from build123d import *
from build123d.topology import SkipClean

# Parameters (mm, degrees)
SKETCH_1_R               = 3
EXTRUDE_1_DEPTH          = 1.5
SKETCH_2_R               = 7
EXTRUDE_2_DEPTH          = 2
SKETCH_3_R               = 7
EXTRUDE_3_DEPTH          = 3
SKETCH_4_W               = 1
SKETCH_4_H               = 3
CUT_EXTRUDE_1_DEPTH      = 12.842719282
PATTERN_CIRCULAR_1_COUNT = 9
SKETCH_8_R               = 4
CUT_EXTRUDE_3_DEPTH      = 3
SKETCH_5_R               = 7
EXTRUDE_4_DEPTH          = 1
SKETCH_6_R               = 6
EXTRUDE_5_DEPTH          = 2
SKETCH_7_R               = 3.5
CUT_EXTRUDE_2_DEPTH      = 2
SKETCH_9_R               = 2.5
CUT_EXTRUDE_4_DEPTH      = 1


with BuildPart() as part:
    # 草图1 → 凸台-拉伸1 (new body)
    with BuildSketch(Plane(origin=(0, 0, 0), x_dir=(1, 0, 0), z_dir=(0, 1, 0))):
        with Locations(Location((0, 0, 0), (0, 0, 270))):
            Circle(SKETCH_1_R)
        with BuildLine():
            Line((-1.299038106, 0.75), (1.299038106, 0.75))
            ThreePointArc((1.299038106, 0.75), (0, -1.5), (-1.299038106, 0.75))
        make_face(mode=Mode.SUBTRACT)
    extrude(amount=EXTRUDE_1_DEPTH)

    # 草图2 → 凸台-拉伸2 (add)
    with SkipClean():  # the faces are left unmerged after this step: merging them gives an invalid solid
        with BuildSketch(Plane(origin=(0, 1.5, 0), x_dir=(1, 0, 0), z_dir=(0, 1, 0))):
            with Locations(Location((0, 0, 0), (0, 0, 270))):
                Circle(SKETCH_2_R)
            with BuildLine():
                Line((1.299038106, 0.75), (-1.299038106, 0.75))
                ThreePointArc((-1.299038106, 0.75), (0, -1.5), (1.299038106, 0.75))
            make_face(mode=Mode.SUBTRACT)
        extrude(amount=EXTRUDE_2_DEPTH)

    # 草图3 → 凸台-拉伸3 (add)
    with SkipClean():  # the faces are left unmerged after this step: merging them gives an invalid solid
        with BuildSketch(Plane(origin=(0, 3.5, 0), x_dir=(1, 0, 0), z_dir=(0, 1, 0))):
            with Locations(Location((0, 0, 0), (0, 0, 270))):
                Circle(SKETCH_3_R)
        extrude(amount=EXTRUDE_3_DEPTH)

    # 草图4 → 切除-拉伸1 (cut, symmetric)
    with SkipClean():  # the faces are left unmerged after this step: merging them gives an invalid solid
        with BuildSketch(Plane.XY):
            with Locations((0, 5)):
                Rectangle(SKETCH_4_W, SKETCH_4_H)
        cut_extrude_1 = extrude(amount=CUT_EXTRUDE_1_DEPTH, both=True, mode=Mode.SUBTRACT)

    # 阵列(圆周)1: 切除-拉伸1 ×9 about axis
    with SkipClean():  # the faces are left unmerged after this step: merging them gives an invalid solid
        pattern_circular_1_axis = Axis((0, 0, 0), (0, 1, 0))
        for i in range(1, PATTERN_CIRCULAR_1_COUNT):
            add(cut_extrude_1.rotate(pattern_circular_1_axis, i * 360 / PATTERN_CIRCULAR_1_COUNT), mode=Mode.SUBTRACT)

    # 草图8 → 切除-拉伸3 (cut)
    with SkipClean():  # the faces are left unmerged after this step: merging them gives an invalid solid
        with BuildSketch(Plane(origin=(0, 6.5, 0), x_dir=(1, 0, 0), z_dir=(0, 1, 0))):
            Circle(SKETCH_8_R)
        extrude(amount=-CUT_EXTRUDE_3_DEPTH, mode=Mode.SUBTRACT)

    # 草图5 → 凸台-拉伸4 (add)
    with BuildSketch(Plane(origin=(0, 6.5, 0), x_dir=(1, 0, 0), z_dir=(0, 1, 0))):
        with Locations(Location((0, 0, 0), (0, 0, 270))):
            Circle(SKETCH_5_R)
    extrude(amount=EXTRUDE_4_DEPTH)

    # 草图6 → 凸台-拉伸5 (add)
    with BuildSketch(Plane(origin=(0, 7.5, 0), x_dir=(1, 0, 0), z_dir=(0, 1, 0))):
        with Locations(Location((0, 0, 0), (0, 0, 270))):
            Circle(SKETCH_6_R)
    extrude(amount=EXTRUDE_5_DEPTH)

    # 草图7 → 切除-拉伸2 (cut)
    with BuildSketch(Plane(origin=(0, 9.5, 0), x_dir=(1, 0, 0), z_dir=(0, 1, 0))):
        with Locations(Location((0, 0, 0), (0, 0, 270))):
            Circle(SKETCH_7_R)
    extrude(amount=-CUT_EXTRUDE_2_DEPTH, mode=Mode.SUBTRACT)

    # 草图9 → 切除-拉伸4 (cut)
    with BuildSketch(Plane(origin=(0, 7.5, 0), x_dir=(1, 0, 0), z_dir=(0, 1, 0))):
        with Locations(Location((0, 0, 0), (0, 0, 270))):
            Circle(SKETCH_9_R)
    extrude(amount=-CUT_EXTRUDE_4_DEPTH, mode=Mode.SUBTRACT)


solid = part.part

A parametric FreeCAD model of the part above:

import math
import FreeCAD as App
import Part
import Sketcher
from FreeCAD import Vector
Q = App.Units.Quantity

doc = App.newDocument("Part")
params = doc.addObject("Spreadsheet::Sheet", "Params")
for row, (alias, value) in enumerate([
    ("sketch1_diameter", "6 mm"),
    ("sketch1_radius", "1.5 mm"),
    ("pad1_length", "1.5 mm"),
    ("sketch2_diameter", "14 mm"),
    ("sketch2_radius", "1.5 mm"),
    ("pad2_length", "2 mm"),
    ("sketch3_diameter", "14 mm"),
    ("pad3_length", "3 mm"),
    ("sketch4_width", "1 mm"),
    ("sketch4_height", "3 mm"),
    ("pocket1_length", "25.685439 mm"),
    ("sketch5_diameter", "8 mm"),
    ("pocket2_length", "3 mm"),
    ("sketch6_diameter", "14 mm"),
    ("pad4_length", "1 mm"),
    ("sketch7_diameter", "12 mm"),
    ("pad5_length", "2 mm"),
    ("sketch8_diameter", "7 mm"),
    ("pocket3_length", "2 mm"),
    ("sketch9_diameter", "5 mm"),
    ("pocket4_length", "1 mm"),
], start=1):
    params.set(f"A{row}", alias)
    params.set(f"B{row}", "=" + value)
    params.setAlias(f"B{row}", alias)

body = doc.addObject("PartDesign::Body", "Body")

# Sketch on XZ plane
sketch1 = body.newObject("Sketcher::SketchObject", "Sketch")
sketch1.AttachmentSupport = (doc.getObject("XZ_Plane"), [""])
sketch1.MapMode = "FlatFace"
sketch1.addGeometry([
    Part.Circle(Vector(0, 0, 0), Vector(0, 0, 1), 3),
    Part.ArcOfCircle(Part.Circle(Vector(0, 0, 0), Vector(0, 0, 1), 1.5), math.radians(-30), math.radians(210)),
    Part.LineSegment(Vector(-1.299038, -0.75, 0), Vector(1.299038, -0.75, 0)),
], False)
sketch1.addConstraint([
    Sketcher.Constraint("Coincident", 1, 1, 2, 2),
    Sketcher.Constraint("Coincident", 2, 1, 1, 2),
    Sketcher.Constraint("Horizontal", 2),
    Sketcher.Constraint("Coincident", 0, 3, -1, 1),
    Sketcher.Constraint("Coincident", 1, 3, -1, 1),
    Sketcher.Constraint("Diameter", 0, Q("6 mm")),
    Sketcher.Constraint("Radius", 1, Q("1.5 mm")),
    Sketcher.Constraint("DistanceY", 1, 1, -1, 1, Q("0.75 mm")),
])
sketch1.setExpression("Constraints[5]", "Params.sketch1_diameter")
sketch1.setExpression("Constraints[6]", "Params.sketch1_radius")
pad1 = body.newObject("PartDesign::Pad", "Pad")
pad1.Profile = sketch1
pad1.setExpression("Length", "Params.pad1_length")
pad1.Reversed = True

# Sketch on XZ plane
sketch2 = body.newObject("Sketcher::SketchObject", "Sketch001")
sketch2.AttachmentSupport = (doc.getObject("XZ_Plane"), [""])
sketch2.MapMode = "FlatFace"
sketch2.AttachmentOffset = App.Placement(Vector(0, 0, -1.5), App.Rotation())
sketch2.addGeometry([
    Part.Circle(Vector(0, 0, 0), Vector(0, 0, 1), 7),
    Part.LineSegment(Vector(-1.299038, -0.75, 0), Vector(1.299038, -0.75, 0)),
    Part.ArcOfCircle(Part.Circle(Vector(0, 0, 0), Vector(0, 0, 1), 1.5), math.radians(-30), math.radians(210)),
], False)
sketch2.addConstraint([
    Sketcher.Constraint("Coincident", 1, 1, 2, 2),
    Sketcher.Constraint("Coincident", 2, 1, 1, 2),
    Sketcher.Constraint("Horizontal", 1),
    Sketcher.Constraint("Coincident", 0, 3, -1, 1),
    Sketcher.Constraint("Coincident", 2, 3, -1, 1),
    Sketcher.Constraint("Diameter", 0, Q("14 mm")),
    Sketcher.Constraint("Radius", 2, Q("1.5 mm")),
    Sketcher.Constraint("DistanceY", 1, 1, -1, 1, Q("0.75 mm")),
])
sketch2.setExpression("Constraints[5]", "Params.sketch2_diameter")
sketch2.setExpression("Constraints[6]", "Params.sketch2_radius")
pad2 = body.newObject("PartDesign::Pad", "Pad001")
pad2.Profile = sketch2
pad2.setExpression("Length", "Params.pad2_length")
pad2.Reversed = True

# Sketch on XZ plane
sketch3 = body.newObject("Sketcher::SketchObject", "Sketch002")
sketch3.AttachmentSupport = (doc.getObject("XZ_Plane"), [""])
sketch3.MapMode = "FlatFace"
sketch3.AttachmentOffset = App.Placement(Vector(0, 0, -3.5), App.Rotation())
sketch3.addGeometry(Part.Circle(Vector(0, 0, 0), Vector(0, 0, 1), 7), False)
sketch3.addConstraint([
    Sketcher.Constraint("Coincident", 0, 3, -1, 1),
    Sketcher.Constraint("Diameter", 0, Q("14 mm")),
])
sketch3.setExpression("Constraints[1]", "Params.sketch3_diameter")
pad3 = body.newObject("PartDesign::Pad", "Pad002")
pad3.Profile = sketch3
pad3.setExpression("Length", "Params.pad3_length")
pad3.Reversed = True

# Sketch on XY plane
sketch4 = body.newObject("Sketcher::SketchObject", "Sketch003")
sketch4.AttachmentSupport = (doc.getObject("XY_Plane"), [""])
sketch4.MapMode = "FlatFace"
sketch4.addGeometry([
    Part.LineSegment(Vector(-0.5, 6.5, 0), Vector(-0.5, 3.5, 0)),
    Part.LineSegment(Vector(-0.5, 3.5, 0), Vector(0.5, 3.5, 0)),
    Part.LineSegment(Vector(0.5, 3.5, 0), Vector(0.5, 6.5, 0)),
    Part.LineSegment(Vector(0.5, 6.5, 0), Vector(-0.5, 6.5, 0)),
], False)
sketch4.addConstraint([
    Sketcher.Constraint("Coincident", 0, 2, 1, 1),
    Sketcher.Constraint("Coincident", 1, 2, 2, 1),
    Sketcher.Constraint("Coincident", 2, 2, 3, 1),
    Sketcher.Constraint("Coincident", 3, 2, 0, 1),
    Sketcher.Constraint("Vertical", 0),
    Sketcher.Constraint("Horizontal", 1),
    Sketcher.Constraint("Vertical", 2),
    Sketcher.Constraint("Horizontal", 3),
    Sketcher.Constraint("DistanceX", 1, 1, 1, 2, Q("1 mm")),
    Sketcher.Constraint("DistanceY", 0, 2, 0, 1, Q("3 mm")),
    Sketcher.Constraint("DistanceX", 0, 2, -1, 1, Q("0.5 mm")),
    Sketcher.Constraint("DistanceY", -1, 1, 0, 2, Q("3.5 mm")),
])
sketch4.setExpression("Constraints[8]", "Params.sketch4_width")
sketch4.setExpression("Constraints[9]", "Params.sketch4_height")
pocket1 = body.newObject("PartDesign::Pocket", "Pocket")
pocket1.Profile = sketch4
pocket1.setExpression("Length", "Params.pocket1_length")
pocket1.Midplane = True
doc.recompute()

polarpattern = body.newObject("PartDesign::PolarPattern", "PolarPattern")
polarpattern.Originals = [pocket1]
polarpattern.Axis = (doc.getObject("Y_Axis"), [""])
polarpattern.Angle = 360
polarpattern.Occurrences = 9
body.Tip = polarpattern

# Sketch on XZ plane
sketch5 = body.newObject("Sketcher::SketchObject", "Sketch004")
sketch5.AttachmentSupport = (doc.getObject("XZ_Plane"), [""])
sketch5.MapMode = "FlatFace"
sketch5.AttachmentOffset = App.Placement(Vector(0, 0, -6.5), App.Rotation())
sketch5.addGeometry(Part.Circle(Vector(0, 0, 0), Vector(0, 0, 1), 4), False)
sketch5.addConstraint([
    Sketcher.Constraint("Coincident", 0, 3, -1, 1),
    Sketcher.Constraint("Diameter", 0, Q("8 mm")),
])
sketch5.setExpression("Constraints[1]", "Params.sketch5_diameter")
pocket2 = body.newObject("PartDesign::Pocket", "Pocket001")
pocket2.Profile = sketch5
pocket2.setExpression("Length", "Params.pocket2_length")
pocket2.Reversed = True

# Sketch on XZ plane
sketch6 = body.newObject("Sketcher::SketchObject", "Sketch005")
sketch6.AttachmentSupport = (doc.getObject("XZ_Plane"), [""])
sketch6.MapMode = "FlatFace"
sketch6.AttachmentOffset = App.Placement(Vector(0, 0, -6.5), App.Rotation())
sketch6.addGeometry(Part.Circle(Vector(0, 0, 0), Vector(0, 0, 1), 7), False)
sketch6.addConstraint([
    Sketcher.Constraint("Coincident", 0, 3, -1, 1),
    Sketcher.Constraint("Diameter", 0, Q("14 mm")),
])
sketch6.setExpression("Constraints[1]", "Params.sketch6_diameter")
pad4 = body.newObject("PartDesign::Pad", "Pad003")
pad4.Profile = sketch6
pad4.setExpression("Length", "Params.pad4_length")
pad4.Reversed = True

# Sketch on XZ plane
sketch7 = body.newObject("Sketcher::SketchObject", "Sketch006")
sketch7.AttachmentSupport = (doc.getObject("XZ_Plane"), [""])
sketch7.MapMode = "FlatFace"
sketch7.AttachmentOffset = App.Placement(Vector(0, 0, -7.5), App.Rotation())
sketch7.addGeometry(Part.Circle(Vector(0, 0, 0), Vector(0, 0, 1), 6), False)
sketch7.addConstraint([
    Sketcher.Constraint("Coincident", 0, 3, -1, 1),
    Sketcher.Constraint("Diameter", 0, Q("12 mm")),
])
sketch7.setExpression("Constraints[1]", "Params.sketch7_diameter")
pad5 = body.newObject("PartDesign::Pad", "Pad004")
pad5.Profile = sketch7
pad5.setExpression("Length", "Params.pad5_length")
pad5.Reversed = True

# Sketch on XZ plane
sketch8 = body.newObject("Sketcher::SketchObject", "Sketch007")
sketch8.AttachmentSupport = (doc.getObject("XZ_Plane"), [""])
sketch8.MapMode = "FlatFace"
sketch8.AttachmentOffset = App.Placement(Vector(0, 0, -9.5), App.Rotation())
sketch8.addGeometry(Part.Circle(Vector(0, 0, 0), Vector(0, 0, 1), 3.5), False)
sketch8.addConstraint([
    Sketcher.Constraint("Coincident", 0, 3, -1, 1),
    Sketcher.Constraint("Diameter", 0, Q("7 mm")),
])
sketch8.setExpression("Constraints[1]", "Params.sketch8_diameter")
pocket3 = body.newObject("PartDesign::Pocket", "Pocket002")
pocket3.Profile = sketch8
pocket3.setExpression("Length", "Params.pocket3_length")
pocket3.Reversed = True

# Sketch on XZ plane
sketch9 = body.newObject("Sketcher::SketchObject", "Sketch008")
sketch9.AttachmentSupport = (doc.getObject("XZ_Plane"), [""])
sketch9.MapMode = "FlatFace"
sketch9.AttachmentOffset = App.Placement(Vector(0, 0, -7.5), App.Rotation())
sketch9.addGeometry(Part.Circle(Vector(0, 0, 0), Vector(0, 0, 1), 2.5), False)
sketch9.addConstraint([
    Sketcher.Constraint("Coincident", 0, 3, -1, 1),
    Sketcher.Constraint("Diameter", 0, Q("5 mm")),
])
sketch9.setExpression("Constraints[1]", "Params.sketch9_diameter")
pocket4 = body.newObject("PartDesign::Pocket", "Pocket003")
pocket4.Profile = sketch9
pocket4.setExpression("Length", "Params.pocket4_length")
pocket4.Reversed = True

doc.recompute()
